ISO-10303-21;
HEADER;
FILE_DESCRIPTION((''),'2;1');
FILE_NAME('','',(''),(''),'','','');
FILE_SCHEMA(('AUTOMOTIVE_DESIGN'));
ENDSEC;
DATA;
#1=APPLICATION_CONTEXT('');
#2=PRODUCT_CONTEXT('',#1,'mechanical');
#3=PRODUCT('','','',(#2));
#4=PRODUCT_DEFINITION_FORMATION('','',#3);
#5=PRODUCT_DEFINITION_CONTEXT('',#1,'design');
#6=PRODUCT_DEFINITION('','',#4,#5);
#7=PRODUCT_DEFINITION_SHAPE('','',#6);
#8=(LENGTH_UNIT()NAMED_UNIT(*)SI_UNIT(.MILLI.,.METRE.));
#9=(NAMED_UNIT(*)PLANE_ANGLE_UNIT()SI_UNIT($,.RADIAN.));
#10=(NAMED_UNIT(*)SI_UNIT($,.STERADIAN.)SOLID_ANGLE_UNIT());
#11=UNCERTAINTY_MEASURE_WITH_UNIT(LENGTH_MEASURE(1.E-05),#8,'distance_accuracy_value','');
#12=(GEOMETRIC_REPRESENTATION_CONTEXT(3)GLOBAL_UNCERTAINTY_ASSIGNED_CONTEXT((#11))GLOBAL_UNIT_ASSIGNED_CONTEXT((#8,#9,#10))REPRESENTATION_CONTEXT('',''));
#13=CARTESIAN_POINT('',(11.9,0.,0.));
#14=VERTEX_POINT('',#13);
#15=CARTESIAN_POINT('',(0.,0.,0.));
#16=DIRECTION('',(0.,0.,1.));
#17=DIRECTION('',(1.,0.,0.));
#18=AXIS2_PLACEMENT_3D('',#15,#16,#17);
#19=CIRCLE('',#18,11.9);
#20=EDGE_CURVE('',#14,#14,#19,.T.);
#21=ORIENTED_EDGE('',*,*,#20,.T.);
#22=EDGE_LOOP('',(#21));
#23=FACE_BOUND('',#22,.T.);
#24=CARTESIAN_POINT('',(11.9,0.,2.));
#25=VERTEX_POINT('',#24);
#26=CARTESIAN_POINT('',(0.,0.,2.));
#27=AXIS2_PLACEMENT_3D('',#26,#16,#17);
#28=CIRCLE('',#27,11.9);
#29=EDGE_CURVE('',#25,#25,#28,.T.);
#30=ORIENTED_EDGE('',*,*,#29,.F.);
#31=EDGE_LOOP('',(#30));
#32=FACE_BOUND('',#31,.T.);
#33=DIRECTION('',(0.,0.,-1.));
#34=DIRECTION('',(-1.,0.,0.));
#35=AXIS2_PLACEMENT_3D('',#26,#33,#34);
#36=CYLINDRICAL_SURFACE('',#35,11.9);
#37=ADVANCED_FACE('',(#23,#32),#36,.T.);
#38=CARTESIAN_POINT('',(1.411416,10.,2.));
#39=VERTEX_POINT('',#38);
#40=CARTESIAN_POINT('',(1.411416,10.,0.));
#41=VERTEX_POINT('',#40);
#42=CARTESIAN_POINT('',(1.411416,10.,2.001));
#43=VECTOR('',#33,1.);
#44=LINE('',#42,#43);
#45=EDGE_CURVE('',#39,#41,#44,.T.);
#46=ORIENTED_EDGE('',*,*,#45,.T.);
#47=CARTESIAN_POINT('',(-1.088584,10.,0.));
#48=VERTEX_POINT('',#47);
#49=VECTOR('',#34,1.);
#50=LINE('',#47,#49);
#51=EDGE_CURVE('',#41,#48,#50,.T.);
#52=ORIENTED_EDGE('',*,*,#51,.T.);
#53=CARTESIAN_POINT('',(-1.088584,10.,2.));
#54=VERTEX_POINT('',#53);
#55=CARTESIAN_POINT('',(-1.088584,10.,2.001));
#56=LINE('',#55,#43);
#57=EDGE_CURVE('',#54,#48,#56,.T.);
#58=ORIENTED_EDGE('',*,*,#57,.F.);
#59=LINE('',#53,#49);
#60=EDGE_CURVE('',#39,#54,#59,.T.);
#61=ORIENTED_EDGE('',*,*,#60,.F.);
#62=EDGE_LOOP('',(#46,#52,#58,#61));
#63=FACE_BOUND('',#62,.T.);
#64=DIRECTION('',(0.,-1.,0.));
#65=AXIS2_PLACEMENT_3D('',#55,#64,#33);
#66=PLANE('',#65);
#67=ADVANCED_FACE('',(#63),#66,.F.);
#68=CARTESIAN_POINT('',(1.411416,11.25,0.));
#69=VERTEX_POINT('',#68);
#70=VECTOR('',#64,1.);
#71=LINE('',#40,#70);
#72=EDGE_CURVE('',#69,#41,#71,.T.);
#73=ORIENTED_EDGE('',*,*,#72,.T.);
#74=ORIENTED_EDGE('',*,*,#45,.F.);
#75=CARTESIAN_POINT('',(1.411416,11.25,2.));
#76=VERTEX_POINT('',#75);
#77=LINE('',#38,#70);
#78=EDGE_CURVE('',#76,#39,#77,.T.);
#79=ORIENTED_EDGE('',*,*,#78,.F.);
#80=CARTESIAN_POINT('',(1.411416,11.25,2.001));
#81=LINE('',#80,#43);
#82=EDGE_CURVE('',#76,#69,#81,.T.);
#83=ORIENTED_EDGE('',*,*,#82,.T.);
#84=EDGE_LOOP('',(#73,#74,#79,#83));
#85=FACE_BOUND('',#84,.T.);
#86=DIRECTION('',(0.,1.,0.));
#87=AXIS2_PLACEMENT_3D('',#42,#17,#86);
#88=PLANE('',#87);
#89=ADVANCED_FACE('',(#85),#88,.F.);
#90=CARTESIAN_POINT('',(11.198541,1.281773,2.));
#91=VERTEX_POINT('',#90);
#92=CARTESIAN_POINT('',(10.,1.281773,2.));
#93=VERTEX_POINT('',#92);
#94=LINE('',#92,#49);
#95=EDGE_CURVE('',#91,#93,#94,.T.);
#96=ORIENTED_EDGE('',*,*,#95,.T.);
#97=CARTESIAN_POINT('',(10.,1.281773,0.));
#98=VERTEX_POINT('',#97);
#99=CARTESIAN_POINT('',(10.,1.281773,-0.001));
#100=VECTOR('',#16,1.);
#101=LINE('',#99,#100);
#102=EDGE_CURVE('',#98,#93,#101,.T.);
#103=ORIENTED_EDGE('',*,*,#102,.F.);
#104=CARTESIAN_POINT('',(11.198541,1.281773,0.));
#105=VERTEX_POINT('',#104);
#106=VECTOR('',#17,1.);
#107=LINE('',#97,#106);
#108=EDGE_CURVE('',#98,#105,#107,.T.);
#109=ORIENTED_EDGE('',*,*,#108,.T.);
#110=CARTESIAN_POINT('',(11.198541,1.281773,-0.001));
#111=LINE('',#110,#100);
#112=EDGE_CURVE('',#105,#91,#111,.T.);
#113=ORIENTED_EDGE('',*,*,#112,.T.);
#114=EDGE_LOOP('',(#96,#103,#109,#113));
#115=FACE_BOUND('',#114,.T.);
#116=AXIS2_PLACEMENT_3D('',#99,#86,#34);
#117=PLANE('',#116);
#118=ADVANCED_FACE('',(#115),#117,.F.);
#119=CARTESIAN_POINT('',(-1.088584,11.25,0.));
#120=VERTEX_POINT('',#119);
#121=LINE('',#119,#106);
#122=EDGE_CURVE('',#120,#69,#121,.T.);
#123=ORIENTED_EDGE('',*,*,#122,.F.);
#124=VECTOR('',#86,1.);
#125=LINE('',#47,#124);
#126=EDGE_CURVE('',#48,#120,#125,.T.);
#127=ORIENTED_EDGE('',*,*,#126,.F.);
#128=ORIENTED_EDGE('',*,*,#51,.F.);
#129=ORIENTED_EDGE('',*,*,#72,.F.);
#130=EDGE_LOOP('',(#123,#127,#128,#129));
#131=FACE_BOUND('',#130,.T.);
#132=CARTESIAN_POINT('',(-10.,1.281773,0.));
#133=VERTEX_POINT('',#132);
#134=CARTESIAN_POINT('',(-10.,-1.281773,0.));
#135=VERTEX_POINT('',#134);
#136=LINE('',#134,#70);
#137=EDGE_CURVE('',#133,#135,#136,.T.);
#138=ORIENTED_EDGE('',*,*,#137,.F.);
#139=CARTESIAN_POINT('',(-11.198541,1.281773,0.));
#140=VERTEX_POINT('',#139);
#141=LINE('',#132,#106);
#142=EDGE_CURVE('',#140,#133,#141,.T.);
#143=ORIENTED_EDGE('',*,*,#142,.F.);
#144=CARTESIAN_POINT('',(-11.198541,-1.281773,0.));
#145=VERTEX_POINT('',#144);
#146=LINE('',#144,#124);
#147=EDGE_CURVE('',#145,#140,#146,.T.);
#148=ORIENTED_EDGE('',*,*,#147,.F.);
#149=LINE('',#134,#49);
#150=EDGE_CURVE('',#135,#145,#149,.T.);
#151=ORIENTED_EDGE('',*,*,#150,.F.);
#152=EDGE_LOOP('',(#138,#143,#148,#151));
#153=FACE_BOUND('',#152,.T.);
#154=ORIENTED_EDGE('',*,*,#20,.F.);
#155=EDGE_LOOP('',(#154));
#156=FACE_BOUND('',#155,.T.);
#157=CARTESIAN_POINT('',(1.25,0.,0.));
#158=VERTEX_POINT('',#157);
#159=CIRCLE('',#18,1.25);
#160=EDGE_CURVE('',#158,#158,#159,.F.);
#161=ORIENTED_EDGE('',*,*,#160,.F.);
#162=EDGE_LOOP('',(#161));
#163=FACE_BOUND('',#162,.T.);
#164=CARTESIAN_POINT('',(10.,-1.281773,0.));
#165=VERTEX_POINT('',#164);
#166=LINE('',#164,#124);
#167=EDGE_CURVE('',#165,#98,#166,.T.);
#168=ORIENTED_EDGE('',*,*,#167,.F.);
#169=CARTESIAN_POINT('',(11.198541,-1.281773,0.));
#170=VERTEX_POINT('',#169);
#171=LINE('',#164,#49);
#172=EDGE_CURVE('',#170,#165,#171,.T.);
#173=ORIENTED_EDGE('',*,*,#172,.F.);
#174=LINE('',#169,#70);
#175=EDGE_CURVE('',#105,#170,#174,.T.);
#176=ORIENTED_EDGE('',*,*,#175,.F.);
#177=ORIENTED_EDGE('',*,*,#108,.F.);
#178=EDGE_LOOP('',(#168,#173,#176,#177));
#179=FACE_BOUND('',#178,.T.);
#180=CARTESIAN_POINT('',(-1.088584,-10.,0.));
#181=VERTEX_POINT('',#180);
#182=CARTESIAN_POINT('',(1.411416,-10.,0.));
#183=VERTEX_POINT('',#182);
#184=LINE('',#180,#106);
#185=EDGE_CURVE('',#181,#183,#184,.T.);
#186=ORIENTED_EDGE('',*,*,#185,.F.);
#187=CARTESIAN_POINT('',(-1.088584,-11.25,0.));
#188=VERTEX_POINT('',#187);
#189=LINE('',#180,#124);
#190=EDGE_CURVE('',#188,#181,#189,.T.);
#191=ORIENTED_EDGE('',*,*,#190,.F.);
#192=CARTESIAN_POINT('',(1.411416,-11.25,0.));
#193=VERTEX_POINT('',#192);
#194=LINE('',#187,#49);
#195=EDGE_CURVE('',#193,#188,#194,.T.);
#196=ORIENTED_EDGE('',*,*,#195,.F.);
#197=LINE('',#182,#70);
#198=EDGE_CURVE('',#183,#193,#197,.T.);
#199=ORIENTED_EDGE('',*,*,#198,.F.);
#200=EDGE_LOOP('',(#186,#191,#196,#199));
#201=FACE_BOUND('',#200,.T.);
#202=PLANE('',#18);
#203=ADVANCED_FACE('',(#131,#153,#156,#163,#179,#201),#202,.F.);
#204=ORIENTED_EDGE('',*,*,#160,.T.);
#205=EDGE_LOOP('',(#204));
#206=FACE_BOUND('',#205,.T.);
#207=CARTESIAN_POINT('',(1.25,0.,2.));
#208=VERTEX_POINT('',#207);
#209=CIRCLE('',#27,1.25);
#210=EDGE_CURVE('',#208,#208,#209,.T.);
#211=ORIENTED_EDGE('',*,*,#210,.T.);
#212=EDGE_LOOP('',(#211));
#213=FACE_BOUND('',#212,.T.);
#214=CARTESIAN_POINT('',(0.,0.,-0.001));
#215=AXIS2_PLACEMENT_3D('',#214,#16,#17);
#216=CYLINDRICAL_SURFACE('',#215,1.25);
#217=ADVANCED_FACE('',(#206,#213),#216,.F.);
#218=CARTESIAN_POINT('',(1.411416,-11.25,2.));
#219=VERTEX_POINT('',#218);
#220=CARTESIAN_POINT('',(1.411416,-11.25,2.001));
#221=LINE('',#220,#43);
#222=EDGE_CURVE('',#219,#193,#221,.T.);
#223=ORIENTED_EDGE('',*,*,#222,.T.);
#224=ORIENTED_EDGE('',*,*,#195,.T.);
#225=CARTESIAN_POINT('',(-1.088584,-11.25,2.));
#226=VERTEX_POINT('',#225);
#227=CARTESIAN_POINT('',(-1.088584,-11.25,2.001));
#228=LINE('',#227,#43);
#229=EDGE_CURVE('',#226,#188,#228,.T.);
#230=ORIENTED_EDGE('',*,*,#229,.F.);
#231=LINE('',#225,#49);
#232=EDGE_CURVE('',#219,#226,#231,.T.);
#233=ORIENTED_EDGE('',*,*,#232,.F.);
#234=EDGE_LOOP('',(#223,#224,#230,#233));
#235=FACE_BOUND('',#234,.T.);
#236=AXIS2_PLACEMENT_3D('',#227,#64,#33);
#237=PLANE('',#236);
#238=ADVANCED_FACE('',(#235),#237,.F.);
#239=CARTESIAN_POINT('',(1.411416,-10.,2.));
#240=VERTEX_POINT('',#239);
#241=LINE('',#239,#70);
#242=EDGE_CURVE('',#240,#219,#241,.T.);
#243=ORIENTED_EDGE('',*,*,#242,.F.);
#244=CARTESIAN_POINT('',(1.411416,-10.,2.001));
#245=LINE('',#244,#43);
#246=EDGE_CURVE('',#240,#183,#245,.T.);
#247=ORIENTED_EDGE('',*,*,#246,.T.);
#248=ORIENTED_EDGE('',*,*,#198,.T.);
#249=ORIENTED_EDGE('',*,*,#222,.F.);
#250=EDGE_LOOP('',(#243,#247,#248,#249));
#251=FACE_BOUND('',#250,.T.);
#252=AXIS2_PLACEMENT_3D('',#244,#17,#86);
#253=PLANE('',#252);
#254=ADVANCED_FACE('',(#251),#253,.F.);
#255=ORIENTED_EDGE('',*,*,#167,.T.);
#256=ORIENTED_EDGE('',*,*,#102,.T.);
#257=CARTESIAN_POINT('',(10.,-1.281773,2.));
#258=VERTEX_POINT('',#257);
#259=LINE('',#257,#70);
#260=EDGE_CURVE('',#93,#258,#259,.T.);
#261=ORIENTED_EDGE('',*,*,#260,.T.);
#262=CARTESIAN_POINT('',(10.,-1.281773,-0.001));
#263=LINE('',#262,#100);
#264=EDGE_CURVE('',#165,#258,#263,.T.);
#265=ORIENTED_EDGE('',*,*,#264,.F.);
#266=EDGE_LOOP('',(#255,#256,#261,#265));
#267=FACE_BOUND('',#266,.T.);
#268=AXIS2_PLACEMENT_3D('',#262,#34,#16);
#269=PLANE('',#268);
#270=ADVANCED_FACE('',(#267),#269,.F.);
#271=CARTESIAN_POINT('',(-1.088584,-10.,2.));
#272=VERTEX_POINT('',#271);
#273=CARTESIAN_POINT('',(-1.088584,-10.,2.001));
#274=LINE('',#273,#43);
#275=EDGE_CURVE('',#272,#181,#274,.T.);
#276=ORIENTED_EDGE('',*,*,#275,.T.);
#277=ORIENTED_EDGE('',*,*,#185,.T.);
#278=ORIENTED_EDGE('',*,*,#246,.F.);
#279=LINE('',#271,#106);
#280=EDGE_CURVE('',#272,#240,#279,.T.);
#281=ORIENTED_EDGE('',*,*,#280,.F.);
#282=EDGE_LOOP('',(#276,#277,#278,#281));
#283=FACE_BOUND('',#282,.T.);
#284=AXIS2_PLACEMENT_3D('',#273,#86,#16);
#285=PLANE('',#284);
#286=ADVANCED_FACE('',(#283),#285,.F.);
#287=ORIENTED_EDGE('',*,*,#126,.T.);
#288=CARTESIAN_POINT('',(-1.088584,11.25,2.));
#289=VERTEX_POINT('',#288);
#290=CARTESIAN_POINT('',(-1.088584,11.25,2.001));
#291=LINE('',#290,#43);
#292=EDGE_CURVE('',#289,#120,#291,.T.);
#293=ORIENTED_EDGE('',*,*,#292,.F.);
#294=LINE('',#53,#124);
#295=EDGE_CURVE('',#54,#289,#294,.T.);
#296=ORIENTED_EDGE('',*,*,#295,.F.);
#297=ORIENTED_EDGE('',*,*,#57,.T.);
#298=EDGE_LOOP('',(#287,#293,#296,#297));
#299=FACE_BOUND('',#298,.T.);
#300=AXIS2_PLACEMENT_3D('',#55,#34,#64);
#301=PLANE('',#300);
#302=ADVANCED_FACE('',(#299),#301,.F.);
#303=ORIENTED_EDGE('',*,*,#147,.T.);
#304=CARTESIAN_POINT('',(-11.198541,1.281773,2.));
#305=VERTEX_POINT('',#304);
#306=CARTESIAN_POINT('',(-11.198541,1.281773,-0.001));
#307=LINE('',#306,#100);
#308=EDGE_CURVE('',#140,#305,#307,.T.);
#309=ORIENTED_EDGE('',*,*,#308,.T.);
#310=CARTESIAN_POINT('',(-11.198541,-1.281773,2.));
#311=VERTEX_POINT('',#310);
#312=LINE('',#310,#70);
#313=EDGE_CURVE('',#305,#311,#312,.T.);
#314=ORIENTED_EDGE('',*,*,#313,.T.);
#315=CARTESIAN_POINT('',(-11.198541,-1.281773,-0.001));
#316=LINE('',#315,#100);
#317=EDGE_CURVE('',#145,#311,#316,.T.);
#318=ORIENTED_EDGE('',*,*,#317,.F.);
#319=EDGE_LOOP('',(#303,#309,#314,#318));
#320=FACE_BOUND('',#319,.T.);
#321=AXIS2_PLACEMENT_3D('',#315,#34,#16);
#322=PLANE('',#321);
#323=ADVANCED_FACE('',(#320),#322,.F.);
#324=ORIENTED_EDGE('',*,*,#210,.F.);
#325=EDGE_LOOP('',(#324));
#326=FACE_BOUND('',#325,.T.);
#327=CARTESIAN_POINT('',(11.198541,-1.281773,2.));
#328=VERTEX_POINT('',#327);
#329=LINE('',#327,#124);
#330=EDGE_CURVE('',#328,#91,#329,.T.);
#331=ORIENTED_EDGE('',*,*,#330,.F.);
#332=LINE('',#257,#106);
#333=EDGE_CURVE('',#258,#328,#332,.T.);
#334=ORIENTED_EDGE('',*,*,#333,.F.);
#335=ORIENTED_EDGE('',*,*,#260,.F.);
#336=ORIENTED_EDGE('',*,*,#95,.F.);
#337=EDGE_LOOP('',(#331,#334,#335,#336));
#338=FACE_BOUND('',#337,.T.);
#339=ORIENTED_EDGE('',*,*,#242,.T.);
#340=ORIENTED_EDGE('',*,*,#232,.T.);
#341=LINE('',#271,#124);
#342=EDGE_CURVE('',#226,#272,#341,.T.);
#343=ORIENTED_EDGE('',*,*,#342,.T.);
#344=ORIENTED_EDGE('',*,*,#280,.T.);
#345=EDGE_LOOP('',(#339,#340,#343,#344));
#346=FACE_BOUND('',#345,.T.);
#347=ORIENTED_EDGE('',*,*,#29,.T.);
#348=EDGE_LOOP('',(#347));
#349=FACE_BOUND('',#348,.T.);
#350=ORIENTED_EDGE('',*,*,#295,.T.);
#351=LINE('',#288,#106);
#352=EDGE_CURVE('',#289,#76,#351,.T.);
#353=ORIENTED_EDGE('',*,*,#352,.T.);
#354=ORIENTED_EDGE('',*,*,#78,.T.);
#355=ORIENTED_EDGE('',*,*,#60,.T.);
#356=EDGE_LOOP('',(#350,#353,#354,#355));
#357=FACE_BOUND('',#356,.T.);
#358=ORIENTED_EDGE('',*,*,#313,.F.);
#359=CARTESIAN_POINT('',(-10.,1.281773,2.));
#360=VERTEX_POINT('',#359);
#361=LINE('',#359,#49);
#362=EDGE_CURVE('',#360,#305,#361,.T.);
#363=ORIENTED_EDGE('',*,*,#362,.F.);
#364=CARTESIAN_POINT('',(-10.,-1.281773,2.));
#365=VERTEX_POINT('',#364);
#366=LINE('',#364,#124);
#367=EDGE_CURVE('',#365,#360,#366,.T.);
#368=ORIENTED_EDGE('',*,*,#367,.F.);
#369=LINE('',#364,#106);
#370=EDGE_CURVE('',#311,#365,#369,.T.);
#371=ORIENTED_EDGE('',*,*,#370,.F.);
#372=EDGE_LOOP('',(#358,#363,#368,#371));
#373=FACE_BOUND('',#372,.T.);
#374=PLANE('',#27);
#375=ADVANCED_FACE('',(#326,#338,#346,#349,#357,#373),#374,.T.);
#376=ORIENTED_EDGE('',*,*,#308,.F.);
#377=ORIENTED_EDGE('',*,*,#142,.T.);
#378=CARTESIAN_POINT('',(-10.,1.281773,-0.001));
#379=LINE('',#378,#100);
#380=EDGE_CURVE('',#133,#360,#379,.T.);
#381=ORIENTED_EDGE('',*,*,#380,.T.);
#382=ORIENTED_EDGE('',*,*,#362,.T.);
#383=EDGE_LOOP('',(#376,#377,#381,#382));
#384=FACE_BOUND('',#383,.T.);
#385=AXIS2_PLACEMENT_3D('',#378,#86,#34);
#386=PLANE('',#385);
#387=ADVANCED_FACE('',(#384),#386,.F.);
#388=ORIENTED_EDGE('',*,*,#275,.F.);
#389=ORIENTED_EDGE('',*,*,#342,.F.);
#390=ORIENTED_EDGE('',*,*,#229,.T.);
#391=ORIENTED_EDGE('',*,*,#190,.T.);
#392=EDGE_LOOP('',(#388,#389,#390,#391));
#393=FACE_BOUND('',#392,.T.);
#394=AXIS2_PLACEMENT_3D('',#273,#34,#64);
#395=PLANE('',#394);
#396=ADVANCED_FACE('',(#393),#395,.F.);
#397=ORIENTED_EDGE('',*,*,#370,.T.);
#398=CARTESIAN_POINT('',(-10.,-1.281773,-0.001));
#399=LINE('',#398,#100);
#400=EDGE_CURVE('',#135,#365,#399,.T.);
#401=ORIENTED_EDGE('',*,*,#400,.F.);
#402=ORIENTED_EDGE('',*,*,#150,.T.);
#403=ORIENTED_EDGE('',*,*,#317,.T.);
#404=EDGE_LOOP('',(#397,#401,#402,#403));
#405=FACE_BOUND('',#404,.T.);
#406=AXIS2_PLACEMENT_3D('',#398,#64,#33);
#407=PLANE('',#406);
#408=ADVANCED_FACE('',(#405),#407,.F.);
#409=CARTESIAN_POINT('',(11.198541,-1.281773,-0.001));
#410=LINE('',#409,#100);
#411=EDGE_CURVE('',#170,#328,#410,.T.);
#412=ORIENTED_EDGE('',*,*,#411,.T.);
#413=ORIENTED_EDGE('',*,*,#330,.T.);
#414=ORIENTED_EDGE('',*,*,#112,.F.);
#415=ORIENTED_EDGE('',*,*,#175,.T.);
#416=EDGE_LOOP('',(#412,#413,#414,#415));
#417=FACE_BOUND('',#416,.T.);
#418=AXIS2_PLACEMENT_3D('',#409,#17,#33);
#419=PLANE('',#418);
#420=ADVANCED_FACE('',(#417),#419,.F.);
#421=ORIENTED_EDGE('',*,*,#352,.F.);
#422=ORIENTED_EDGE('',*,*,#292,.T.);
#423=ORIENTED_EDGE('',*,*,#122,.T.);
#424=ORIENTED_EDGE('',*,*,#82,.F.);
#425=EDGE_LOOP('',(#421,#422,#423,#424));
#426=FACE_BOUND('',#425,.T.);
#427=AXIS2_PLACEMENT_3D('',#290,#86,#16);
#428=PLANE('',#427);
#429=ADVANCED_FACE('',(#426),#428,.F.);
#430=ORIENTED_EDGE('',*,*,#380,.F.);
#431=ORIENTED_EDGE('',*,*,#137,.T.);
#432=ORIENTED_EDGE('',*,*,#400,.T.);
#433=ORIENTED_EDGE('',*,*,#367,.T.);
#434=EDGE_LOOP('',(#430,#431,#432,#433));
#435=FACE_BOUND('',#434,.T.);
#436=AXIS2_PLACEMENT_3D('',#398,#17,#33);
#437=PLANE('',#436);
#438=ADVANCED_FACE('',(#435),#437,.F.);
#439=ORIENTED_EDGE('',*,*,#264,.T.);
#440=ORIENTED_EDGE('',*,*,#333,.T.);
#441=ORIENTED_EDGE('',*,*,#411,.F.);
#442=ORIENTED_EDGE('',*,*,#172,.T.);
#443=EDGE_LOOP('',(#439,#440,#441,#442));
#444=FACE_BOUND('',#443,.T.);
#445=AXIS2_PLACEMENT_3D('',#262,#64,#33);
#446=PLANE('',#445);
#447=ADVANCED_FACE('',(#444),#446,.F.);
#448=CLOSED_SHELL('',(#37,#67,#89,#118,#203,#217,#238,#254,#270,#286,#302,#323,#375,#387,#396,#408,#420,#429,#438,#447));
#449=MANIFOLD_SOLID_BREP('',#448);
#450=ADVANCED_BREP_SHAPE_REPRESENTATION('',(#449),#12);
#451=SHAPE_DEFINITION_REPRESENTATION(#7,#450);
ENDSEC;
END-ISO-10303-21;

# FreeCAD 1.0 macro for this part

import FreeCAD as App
import Part
import Sketcher


def add_polygon(sketch, points):
    """Adds a closed chain of lines whose ends are joined by coincident constraints."""
    first, n = sketch.GeometryCount, len(points)
    for a, b in zip(points, points[1:] + points[:1]):
        sketch.addGeometry(Part.LineSegment(App.Vector(*a, 0), App.Vector(*b, 0)), False)
    for i in range(n):
        sketch.addConstraint(Sketcher.Constraint("Coincident", first + i, 2, first + (i + 1) % n, 1))

doc = App.newDocument("Part")
body = doc.addObject("PartDesign::Body", "Body")

# Sketch on XY plane
sketch1 = doc.addObject("Sketcher::SketchObject", "Sketch")
body.addObject(sketch1)
sketch1.AttachmentSupport = (doc.XY_Plane, [""])
sketch1.MapMode = "FlatFace"
sketch1.addGeometry(Part.Circle(App.Vector(0, 0, 0), App.Vector(0, 0, 1), 12), False)
sketch1.addConstraint(Sketcher.Constraint("Coincident", 0, 3, -1, 1))
sketch1.addConstraint(Sketcher.Constraint("Diameter", 0, 23.8))
pad1 = doc.addObject("PartDesign::Pad", "Pad")
body.addObject(pad1)
pad1.Profile = sketch1
pad1.Length = 2

# Sketch on XY plane
sketch2 = doc.addObject("Sketcher::SketchObject", "Sketch001")
body.addObject(sketch2)
sketch2.AttachmentSupport = (doc.XY_Plane, [""])
sketch2.MapMode = "FlatFace"
sketch2.AttachmentOffset = App.Placement(App.Vector(0, 0, 2), App.Rotation())
add_polygon(sketch2, [(10, 1.3), (10, -1.3), (11.2, -1.3), (11.2, 1.3)])  # lines 0-3
sketch2.addConstraint(Sketcher.Constraint("Vertical", 0))
sketch2.addConstraint(Sketcher.Constraint("Horizontal", 1))
sketch2.addConstraint(Sketcher.Constraint("Vertical", 2))
sketch2.addConstraint(Sketcher.Constraint("Horizontal", 3))
sketch2.addConstraint(Sketcher.Constraint("DistanceX", -1, 1, 0, 2, 10.0))
sketch2.addConstraint(Sketcher.Constraint("DistanceX", 1, 1, 1, 2, 1.198541))
sketch2.addConstraint(Sketcher.Constraint("DistanceY", 0, 2, 0, 1, 2.563545))
sketch2.addConstraint(Sketcher.Constraint("DistanceY", 0, 2, -1, 1, 1.281773))
pocket1 = doc.addObject("PartDesign::Pocket", "Pocket")
body.addObject(pocket1)
pocket1.Profile = sketch2
pocket1.Type = "UpToFirst"

# Sketch on XY plane
sketch3 = doc.addObject("Sketcher::SketchObject", "Sketch002")
body.addObject(sketch3)
sketch3.AttachmentSupport = (doc.XY_Plane, [""])
sketch3.MapMode = "FlatFace"
sketch3.AttachmentOffset = App.Placement(App.Vector(0, 0, 2), App.Rotation())
add_polygon(sketch3, [(-11.2, 1.3), (-11.2, -1.3), (-10, -1.3), (-10, 1.3)])  # lines 0-3
sketch3.addConstraint(Sketcher.Constraint("Vertical", 0))
sketch3.addConstraint(Sketcher.Constraint("Horizontal", 1))
sketch3.addConstraint(Sketcher.Constraint("Vertical", 2))
sketch3.addConstraint(Sketcher.Constraint("Horizontal", 3))
sketch3.addConstraint(Sketcher.Constraint("DistanceX", 1, 2, -1, 1, 10.0))
sketch3.addConstraint(Sketcher.Constraint("DistanceX", 1, 1, 1, 2, 1.198541))
sketch3.addConstraint(Sketcher.Constraint("DistanceY", 0, 2, 0, 1, 2.563545))
sketch3.addConstraint(Sketcher.Constraint("DistanceY", 0, 2, -1, 1, 1.281773))
pocket2 = doc.addObject("PartDesign::Pocket", "Pocket001")
body.addObject(pocket2)
pocket2.Profile = sketch3
pocket2.Type = "UpToFirst"

# Sketch on XY plane
sketch4 = doc.addObject("Sketcher::SketchObject", "Sketch003")
body.addObject(sketch4)
sketch4.AttachmentSupport = (doc.XY_Plane, [""])
sketch4.MapMode = "FlatFace"
sketch4.AttachmentOffset = App.Placement(App.Vector(0, 0, 2), App.Rotation())
sketch4.addGeometry(Part.Circle(App.Vector(0, 0, 0), App.Vector(0, 0, 1), 1.2), False)
sketch4.addConstraint(Sketcher.Constraint("Coincident", 0, 3, -1, 1))
sketch4.addConstraint(Sketcher.Constraint("Diameter", 0, 2.5))
pocket3 = doc.addObject("PartDesign::Pocket", "Pocket002")
body.addObject(pocket3)
pocket3.Profile = sketch4
pocket3.Type = "UpToFirst"

# Sketch on XY plane
sketch5 = doc.addObject("Sketcher::SketchObject", "Sketch004")
body.addObject(sketch5)
sketch5.AttachmentSupport = (doc.XY_Plane, [""])
sketch5.MapMode = "FlatFace"
add_polygon(sketch5, [(1.4, -10), (1.4, -11.2), (-1.1, -11.2), (-1.1, -10)])  # lines 0-3
sketch5.addConstraint(Sketcher.Constraint("Vertical", 0))
sketch5.addConstraint(Sketcher.Constraint("Horizontal", 1))
sketch5.addConstraint(Sketcher.Constraint("Vertical", 2))
sketch5.addConstraint(Sketcher.Constraint("Horizontal", 3))
sketch5.addConstraint(Sketcher.Constraint("DistanceX", 1, 2, 1, 1, 2.5))
sketch5.addConstraint(Sketcher.Constraint("DistanceY", 2, 2, -1, 1, 10.0))
sketch5.addConstraint(Sketcher.Constraint("DistanceY", 0, 2, 0, 1, 1.25))
sketch5.addConstraint(Sketcher.Constraint("DistanceX", -1, 1, 0, 2, 1.411416))
pocket4 = doc.addObject("PartDesign::Pocket", "Pocket003")
body.addObject(pocket4)
pocket4.Profile = sketch5
pocket4.Type = "UpToFirst"
pocket4.Reversed = True

# Sketch on XY plane
sketch6 = doc.addObject("Sketcher::SketchObject", "Sketch005")
body.addObject(sketch6)
sketch6.AttachmentSupport = (doc.XY_Plane, [""])
sketch6.MapMode = "FlatFace"
add_polygon(sketch6, [(1.4, 11.2), (1.4, 10), (-1.1, 10), (-1.1, 11.2)])  # lines 0-3
sketch6.addConstraint(Sketcher.Constraint("Vertical", 0))
sketch6.addConstraint(Sketcher.Constraint("Horizontal", 1))
sketch6.addConstraint(Sketcher.Constraint("Vertical", 2))
sketch6.addConstraint(Sketcher.Constraint("Horizontal", 3))
sketch6.addConstraint(Sketcher.Constraint("DistanceX", 1, 2, 1, 1, 2.5))
sketch6.addConstraint(Sketcher.Constraint("DistanceY", -1, 1, 0, 2, 10.0))
sketch6.addConstraint(Sketcher.Constraint("DistanceY", 0, 2, 0, 1, 1.25))
sketch6.addConstraint(Sketcher.Constraint("DistanceX", -1, 1, 0, 2, 1.411416))
pocket5 = doc.addObject("PartDesign::Pocket", "Pocket004")
body.addObject(pocket5)
pocket5.Profile = sketch6
pocket5.Type = "UpToFirst"
pocket5.Reversed = True

doc.recompute()
